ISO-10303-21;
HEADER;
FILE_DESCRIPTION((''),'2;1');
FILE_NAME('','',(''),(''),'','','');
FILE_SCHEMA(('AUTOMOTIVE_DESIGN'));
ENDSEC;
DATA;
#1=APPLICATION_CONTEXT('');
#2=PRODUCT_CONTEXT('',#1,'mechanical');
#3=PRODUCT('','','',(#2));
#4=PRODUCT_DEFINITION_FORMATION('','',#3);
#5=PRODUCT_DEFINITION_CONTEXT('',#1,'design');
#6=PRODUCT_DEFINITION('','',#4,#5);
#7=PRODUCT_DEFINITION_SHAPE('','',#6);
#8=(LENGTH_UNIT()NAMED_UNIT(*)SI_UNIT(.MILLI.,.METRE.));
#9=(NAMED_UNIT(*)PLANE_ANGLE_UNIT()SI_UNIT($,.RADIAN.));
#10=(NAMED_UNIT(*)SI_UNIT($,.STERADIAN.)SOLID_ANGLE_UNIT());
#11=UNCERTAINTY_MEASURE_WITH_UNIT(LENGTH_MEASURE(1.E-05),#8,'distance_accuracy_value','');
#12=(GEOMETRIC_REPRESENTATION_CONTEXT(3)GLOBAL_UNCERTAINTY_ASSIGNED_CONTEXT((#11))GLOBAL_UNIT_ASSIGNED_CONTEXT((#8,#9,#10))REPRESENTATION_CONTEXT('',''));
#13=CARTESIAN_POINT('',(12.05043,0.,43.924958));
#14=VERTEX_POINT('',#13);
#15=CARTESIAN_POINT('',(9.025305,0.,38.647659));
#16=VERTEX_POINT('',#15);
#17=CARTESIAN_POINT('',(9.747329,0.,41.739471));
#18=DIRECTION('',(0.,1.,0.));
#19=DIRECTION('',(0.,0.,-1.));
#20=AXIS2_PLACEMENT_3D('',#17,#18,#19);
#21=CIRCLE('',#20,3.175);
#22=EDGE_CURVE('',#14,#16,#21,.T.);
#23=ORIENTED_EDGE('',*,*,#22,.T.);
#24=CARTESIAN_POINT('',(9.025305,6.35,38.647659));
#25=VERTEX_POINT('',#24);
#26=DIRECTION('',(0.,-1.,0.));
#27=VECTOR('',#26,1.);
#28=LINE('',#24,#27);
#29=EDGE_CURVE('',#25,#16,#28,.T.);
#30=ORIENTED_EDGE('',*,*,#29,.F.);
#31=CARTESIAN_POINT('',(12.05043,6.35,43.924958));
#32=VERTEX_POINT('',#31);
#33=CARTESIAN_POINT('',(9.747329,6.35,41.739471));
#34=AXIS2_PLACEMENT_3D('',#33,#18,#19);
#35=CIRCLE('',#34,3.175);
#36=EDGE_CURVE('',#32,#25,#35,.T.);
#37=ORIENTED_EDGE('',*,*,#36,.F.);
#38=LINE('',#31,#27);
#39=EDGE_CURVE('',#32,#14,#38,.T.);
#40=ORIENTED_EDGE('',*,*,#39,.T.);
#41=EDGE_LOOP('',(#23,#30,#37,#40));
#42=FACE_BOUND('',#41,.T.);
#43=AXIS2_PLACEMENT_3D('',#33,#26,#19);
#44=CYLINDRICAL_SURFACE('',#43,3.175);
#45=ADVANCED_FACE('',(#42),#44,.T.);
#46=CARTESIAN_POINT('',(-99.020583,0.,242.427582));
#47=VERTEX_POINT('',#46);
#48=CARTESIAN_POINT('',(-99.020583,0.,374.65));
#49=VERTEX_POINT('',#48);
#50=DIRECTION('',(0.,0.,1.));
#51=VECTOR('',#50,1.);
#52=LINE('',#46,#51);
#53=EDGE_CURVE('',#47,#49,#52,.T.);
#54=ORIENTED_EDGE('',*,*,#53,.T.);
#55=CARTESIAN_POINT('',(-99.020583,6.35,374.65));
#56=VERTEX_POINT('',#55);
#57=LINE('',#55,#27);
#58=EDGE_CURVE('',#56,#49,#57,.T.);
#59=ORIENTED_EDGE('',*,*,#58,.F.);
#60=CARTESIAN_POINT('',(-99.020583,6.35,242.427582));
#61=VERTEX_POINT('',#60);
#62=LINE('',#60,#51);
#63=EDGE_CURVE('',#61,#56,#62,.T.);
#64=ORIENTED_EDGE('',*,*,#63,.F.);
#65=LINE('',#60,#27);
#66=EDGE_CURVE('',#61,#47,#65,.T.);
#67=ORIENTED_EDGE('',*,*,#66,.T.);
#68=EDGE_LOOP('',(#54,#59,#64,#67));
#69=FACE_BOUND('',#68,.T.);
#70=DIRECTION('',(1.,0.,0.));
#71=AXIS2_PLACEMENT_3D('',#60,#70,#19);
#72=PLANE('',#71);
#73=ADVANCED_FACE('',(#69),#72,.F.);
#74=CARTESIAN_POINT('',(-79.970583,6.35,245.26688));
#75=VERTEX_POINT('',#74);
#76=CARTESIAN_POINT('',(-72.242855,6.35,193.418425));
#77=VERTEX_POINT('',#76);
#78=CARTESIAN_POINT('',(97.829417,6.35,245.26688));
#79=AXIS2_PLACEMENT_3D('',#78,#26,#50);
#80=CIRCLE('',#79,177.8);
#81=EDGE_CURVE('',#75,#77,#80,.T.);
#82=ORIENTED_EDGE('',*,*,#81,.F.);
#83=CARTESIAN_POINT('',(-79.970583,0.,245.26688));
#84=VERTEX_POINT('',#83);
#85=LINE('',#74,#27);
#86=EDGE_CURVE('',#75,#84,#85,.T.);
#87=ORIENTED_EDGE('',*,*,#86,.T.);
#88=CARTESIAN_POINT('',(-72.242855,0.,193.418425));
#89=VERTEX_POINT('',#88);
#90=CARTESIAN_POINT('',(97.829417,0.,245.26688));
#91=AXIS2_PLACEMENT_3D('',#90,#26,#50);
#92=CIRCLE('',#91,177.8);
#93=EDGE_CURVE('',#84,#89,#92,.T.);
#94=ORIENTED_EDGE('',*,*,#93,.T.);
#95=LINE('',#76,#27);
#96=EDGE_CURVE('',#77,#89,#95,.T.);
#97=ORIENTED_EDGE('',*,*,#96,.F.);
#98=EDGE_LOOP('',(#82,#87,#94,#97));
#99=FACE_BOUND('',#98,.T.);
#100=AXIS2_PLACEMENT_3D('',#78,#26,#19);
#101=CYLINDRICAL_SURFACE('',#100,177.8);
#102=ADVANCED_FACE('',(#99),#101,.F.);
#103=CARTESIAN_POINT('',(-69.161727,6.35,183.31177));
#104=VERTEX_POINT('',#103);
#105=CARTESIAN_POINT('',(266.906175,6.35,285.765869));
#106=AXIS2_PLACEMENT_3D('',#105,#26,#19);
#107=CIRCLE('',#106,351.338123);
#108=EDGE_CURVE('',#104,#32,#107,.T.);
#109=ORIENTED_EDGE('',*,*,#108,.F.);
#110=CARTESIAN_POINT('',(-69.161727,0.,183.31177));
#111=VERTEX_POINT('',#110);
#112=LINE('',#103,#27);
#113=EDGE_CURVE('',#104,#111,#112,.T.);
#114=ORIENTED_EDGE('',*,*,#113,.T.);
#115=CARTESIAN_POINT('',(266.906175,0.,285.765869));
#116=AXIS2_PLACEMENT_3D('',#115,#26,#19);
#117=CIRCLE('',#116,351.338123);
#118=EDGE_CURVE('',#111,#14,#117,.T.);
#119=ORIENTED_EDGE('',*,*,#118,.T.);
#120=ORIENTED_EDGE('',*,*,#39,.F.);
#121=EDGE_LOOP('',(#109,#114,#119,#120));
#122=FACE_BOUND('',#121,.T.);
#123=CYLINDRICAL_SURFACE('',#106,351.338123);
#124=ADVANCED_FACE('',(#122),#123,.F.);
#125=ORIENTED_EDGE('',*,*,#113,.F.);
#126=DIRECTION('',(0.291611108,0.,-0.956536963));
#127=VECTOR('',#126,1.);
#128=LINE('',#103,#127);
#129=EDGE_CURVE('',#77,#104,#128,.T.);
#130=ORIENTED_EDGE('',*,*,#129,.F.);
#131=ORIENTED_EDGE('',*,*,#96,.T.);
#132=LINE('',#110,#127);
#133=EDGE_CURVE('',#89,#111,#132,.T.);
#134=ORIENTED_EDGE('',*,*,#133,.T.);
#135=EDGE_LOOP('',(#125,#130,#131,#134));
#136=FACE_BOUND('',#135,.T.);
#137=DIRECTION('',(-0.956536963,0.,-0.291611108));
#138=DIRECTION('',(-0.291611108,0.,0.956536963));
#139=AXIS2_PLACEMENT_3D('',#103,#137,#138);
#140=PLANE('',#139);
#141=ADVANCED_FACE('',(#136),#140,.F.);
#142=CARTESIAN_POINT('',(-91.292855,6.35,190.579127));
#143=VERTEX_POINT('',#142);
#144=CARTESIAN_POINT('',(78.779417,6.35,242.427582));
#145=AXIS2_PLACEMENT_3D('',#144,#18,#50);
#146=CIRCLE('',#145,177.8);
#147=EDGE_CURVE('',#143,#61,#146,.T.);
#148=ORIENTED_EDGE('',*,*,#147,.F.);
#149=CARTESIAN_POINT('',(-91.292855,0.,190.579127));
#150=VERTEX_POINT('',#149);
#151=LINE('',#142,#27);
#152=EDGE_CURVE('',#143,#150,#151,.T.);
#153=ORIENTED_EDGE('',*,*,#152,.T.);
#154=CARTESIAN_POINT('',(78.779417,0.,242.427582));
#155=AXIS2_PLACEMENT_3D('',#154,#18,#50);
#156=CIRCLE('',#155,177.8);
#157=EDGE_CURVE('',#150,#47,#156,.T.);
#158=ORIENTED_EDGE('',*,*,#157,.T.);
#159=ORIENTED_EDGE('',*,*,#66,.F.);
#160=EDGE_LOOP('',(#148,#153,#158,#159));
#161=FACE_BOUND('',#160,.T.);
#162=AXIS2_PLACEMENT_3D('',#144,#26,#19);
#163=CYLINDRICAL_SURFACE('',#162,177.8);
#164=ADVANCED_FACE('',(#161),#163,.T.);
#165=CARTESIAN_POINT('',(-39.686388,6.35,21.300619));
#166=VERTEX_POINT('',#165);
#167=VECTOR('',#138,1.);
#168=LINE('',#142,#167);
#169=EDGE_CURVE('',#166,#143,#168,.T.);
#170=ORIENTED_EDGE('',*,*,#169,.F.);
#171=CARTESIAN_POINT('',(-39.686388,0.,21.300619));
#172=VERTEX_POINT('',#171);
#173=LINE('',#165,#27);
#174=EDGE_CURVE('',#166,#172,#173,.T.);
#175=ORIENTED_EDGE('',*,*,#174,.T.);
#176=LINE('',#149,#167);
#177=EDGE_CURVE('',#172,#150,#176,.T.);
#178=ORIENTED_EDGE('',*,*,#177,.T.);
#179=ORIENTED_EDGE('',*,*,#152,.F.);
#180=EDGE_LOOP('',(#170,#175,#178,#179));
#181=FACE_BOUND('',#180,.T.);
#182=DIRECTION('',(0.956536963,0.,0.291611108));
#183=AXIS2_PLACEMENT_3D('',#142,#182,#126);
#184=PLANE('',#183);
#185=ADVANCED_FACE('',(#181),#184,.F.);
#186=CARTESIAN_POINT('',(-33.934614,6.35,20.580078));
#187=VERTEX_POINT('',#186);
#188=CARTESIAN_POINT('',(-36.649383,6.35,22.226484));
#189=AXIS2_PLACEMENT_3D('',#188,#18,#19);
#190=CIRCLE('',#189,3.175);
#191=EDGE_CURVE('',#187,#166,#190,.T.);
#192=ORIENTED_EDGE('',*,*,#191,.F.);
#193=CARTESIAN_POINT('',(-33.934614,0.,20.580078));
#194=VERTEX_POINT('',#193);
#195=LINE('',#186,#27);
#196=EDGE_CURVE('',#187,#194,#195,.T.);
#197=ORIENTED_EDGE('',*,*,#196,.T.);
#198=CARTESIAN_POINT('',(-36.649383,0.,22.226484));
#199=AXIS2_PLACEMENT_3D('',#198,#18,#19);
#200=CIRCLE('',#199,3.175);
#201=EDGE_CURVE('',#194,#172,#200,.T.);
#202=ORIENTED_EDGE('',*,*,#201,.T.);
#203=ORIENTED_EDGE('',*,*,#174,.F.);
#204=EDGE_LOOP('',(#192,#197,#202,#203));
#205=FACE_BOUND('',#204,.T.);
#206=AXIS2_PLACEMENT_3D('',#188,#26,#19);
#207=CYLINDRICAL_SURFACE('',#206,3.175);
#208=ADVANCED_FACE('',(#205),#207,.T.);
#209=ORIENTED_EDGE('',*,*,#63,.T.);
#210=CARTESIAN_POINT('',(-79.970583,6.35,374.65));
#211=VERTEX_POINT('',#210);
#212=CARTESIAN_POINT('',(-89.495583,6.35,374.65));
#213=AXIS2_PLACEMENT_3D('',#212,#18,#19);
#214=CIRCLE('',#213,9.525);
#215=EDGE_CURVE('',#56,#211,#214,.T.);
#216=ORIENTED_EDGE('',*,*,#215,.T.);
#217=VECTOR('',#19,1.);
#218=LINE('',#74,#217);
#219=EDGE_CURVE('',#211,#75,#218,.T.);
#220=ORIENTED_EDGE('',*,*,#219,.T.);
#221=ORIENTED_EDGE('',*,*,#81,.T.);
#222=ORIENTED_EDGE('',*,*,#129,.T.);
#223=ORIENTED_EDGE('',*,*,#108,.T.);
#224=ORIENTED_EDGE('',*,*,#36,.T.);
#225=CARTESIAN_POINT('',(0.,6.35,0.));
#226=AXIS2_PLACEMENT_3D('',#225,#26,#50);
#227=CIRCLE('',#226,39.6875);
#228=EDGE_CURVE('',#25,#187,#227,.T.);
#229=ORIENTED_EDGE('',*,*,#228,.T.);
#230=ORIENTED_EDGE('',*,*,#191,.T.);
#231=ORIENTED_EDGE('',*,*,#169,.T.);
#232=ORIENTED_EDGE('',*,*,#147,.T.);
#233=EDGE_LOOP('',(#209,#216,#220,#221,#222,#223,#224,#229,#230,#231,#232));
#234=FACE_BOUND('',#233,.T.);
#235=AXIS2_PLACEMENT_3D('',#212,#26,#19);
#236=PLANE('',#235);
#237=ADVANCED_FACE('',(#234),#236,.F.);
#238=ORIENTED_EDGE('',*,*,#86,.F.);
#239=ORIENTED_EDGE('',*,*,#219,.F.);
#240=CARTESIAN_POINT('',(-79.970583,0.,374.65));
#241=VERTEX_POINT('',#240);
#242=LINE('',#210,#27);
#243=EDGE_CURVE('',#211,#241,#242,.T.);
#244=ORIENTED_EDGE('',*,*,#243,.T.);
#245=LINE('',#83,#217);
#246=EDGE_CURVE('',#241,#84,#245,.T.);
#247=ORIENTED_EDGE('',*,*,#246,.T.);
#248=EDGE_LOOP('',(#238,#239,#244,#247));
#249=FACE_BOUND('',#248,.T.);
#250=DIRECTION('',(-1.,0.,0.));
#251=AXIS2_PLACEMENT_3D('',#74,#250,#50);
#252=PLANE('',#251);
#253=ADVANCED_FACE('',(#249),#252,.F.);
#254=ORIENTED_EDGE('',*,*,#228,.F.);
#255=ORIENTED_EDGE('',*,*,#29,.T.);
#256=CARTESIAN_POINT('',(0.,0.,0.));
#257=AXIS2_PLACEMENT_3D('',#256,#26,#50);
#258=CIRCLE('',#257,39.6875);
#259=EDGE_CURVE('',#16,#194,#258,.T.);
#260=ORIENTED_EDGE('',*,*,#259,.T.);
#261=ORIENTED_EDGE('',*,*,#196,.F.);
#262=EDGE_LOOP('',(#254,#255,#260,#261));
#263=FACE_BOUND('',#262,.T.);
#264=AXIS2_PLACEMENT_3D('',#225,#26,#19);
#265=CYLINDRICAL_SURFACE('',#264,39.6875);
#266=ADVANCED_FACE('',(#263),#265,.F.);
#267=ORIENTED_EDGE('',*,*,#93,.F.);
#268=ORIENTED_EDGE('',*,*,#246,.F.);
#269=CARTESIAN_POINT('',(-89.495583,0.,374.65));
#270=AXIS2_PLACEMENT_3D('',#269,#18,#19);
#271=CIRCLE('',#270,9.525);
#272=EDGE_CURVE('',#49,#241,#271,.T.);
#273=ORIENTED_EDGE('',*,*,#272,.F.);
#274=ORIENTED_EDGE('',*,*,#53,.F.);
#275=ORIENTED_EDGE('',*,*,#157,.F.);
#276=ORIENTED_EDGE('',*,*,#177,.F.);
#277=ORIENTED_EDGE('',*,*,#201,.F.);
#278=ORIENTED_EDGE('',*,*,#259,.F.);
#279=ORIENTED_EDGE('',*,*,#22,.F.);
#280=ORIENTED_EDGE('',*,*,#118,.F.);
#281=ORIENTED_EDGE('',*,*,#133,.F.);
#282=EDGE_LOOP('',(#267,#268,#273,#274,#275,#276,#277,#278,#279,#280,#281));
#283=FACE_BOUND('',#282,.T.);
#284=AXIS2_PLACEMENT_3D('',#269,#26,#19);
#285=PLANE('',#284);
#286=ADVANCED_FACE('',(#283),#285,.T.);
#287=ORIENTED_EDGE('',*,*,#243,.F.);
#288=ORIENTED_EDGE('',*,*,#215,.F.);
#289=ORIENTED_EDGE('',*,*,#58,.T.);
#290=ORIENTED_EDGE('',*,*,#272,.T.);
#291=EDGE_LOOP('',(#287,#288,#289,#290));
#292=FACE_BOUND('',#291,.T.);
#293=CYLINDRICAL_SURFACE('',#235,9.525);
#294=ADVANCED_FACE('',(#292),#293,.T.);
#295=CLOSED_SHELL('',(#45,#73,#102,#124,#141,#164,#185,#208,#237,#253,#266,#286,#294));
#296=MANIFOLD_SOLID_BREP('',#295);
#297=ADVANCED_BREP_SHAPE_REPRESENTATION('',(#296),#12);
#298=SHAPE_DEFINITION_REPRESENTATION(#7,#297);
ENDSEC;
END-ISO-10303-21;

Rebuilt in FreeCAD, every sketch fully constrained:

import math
import FreeCAD as App
import Part
import Sketcher
Q = App.Units.Quantity

doc = App.newDocument("Part")
body = doc.addObject("PartDesign::Body", "Body")

# Sketch on XZ plane
sketch1 = body.newObject("Sketcher::SketchObject", "Sketch")
sketch1.AttachmentSupport = (doc.getObject("XZ_Plane"), [""])
sketch1.MapMode = "FlatFace"
sketch1.addGeometry(Part.LineSegment(App.Vector(-99, 242.4, 0), App.Vector(-99, 374.6, 0)), False)
sketch1.addGeometry(Part.ArcOfCircle(Part.Circle(App.Vector(-89.5, 374.6, 0), App.Vector(0, 0, 1), 9.5), math.radians(0), math.radians(180)), False)
sketch1.addGeometry(Part.LineSegment(App.Vector(-80, 374.6, 0), App.Vector(-80, 245.3, 0)), False)
sketch1.addGeometry(Part.ArcOfCircle(Part.Circle(App.Vector(97.8, 245.3, 0), App.Vector(0, 0, 1), 177.8), math.radians(180), math.radians(196.95)), False)
sketch1.addGeometry(Part.LineSegment(App.Vector(-72.2, 193.4, 0), App.Vector(-69.2, 183.3, 0)), False)
sketch1.addGeometry(Part.ArcOfCircle(Part.Circle(App.Vector(266.9, 285.8, 0), App.Vector(0, 0, 1), 351.3), math.radians(-163), math.radians(-137)), False)
sketch1.addGeometry(Part.ArcOfCircle(Part.Circle(App.Vector(9.7, 41.7, 0), App.Vector(0, 0, 1), 3.2), math.radians(-103), math.radians(43)), False)
sketch1.addGeometry(Part.ArcOfCircle(Part.Circle(App.Vector(0, 0, 0), App.Vector(0, 0, 1), 39.7), math.radians(77), math.radians(149)), False)
sketch1.addGeometry(Part.ArcOfCircle(Part.Circle(App.Vector(-36.6, 22.2, 0), App.Vector(0, 0, 1), 3.2), math.radians(-163), math.radians(-31)), False)
sketch1.addGeometry(Part.LineSegment(App.Vector(-39.7, 21.3, 0), App.Vector(-91.3, 190.6, 0)), False)
sketch1.addGeometry(Part.ArcOfCircle(Part.Circle(App.Vector(78.8, 242.4, 0), App.Vector(0, 0, 1), 177.8), math.radians(180), math.radians(196.95)), False)
sketch1.addConstraint(Sketcher.Constraint("Tangent", 0, 2, 1, 2))
sketch1.addConstraint(Sketcher.Constraint("Tangent", 1, 1, 2, 1))
sketch1.addConstraint(Sketcher.Constraint("Tangent", 2, 2, 3, 1))
sketch1.addConstraint(Sketcher.Constraint("Tangent", 3, 2, 4, 1))
sketch1.addConstraint(Sketcher.Constraint("Tangent", 4, 2, 5, 1))
sketch1.addConstraint(Sketcher.Constraint("Tangent", 5, 2, 6, 2))
sketch1.addConstraint(Sketcher.Constraint("Tangent", 6, 1, 7, 1))
sketch1.addConstraint(Sketcher.Constraint("Tangent", 7, 2, 8, 2))
sketch1.addConstraint(Sketcher.Constraint("Tangent", 8, 1, 9, 1))
sketch1.addConstraint(Sketcher.Constraint("Tangent", 9, 2, 10, 2))
sketch1.addConstraint(Sketcher.Constraint("Tangent", 10, 1, 0, 1))
sketch1.addConstraint(Sketcher.Constraint("Vertical", 0))
sketch1.addConstraint(Sketcher.Constraint("Vertical", 2))
sketch1.addConstraint(Sketcher.Constraint("Coincident", 7, 3, -1, 1))
sketch1.addConstraint(Sketcher.Constraint("Equal", 6, 8))
sketch1.addConstraint(Sketcher.Constraint("Equal", 3, 10))
sketch1.addConstraint(Sketcher.Constraint("Parallel", 4, 9))
sketch1.addConstraint(Sketcher.Constraint("Radius", 3, Q("7 in")))
sketch1.addConstraint(Sketcher.Constraint("Radius", 1, Q("0.375 in")))
sketch1.addConstraint(Sketcher.Constraint("Radius", 6, Q("0.125 in")))
sketch1.addConstraint(Sketcher.Constraint("Radius", 7, Q("1.5625 in")))
sketch1.addConstraint(Sketcher.Constraint("DistanceY", -1, 1, 1, 3, Q("14.75 in")))
sketch1.addConstraint(Sketcher.Constraint("Radius", 5, 351.338123))
sketch1.addConstraint(Sketcher.Constraint("DistanceY", 4, 2, 3, 2, Q("0.3978998 in")))
sketch1.addConstraint(Sketcher.Constraint("DistanceY", 2, 2, 2, 1, 129.38312))
sketch1.addConstraint(Sketcher.Constraint("DistanceX", 8, 3, 3, 3, 134.4788))
sketch1.addConstraint(Sketcher.Constraint("DistanceY", 10, 3, 3, 3, 2.839298))
sketch1.addConstraint(Sketcher.Constraint("DistanceY", 6, 3, 4, 2, 141.572299))
pad1 = body.newObject("PartDesign::Pad", "Pad")
pad1.Profile = sketch1
pad1.Length = Q("0.25 in")
pad1.Reversed = True

doc.recompute()
